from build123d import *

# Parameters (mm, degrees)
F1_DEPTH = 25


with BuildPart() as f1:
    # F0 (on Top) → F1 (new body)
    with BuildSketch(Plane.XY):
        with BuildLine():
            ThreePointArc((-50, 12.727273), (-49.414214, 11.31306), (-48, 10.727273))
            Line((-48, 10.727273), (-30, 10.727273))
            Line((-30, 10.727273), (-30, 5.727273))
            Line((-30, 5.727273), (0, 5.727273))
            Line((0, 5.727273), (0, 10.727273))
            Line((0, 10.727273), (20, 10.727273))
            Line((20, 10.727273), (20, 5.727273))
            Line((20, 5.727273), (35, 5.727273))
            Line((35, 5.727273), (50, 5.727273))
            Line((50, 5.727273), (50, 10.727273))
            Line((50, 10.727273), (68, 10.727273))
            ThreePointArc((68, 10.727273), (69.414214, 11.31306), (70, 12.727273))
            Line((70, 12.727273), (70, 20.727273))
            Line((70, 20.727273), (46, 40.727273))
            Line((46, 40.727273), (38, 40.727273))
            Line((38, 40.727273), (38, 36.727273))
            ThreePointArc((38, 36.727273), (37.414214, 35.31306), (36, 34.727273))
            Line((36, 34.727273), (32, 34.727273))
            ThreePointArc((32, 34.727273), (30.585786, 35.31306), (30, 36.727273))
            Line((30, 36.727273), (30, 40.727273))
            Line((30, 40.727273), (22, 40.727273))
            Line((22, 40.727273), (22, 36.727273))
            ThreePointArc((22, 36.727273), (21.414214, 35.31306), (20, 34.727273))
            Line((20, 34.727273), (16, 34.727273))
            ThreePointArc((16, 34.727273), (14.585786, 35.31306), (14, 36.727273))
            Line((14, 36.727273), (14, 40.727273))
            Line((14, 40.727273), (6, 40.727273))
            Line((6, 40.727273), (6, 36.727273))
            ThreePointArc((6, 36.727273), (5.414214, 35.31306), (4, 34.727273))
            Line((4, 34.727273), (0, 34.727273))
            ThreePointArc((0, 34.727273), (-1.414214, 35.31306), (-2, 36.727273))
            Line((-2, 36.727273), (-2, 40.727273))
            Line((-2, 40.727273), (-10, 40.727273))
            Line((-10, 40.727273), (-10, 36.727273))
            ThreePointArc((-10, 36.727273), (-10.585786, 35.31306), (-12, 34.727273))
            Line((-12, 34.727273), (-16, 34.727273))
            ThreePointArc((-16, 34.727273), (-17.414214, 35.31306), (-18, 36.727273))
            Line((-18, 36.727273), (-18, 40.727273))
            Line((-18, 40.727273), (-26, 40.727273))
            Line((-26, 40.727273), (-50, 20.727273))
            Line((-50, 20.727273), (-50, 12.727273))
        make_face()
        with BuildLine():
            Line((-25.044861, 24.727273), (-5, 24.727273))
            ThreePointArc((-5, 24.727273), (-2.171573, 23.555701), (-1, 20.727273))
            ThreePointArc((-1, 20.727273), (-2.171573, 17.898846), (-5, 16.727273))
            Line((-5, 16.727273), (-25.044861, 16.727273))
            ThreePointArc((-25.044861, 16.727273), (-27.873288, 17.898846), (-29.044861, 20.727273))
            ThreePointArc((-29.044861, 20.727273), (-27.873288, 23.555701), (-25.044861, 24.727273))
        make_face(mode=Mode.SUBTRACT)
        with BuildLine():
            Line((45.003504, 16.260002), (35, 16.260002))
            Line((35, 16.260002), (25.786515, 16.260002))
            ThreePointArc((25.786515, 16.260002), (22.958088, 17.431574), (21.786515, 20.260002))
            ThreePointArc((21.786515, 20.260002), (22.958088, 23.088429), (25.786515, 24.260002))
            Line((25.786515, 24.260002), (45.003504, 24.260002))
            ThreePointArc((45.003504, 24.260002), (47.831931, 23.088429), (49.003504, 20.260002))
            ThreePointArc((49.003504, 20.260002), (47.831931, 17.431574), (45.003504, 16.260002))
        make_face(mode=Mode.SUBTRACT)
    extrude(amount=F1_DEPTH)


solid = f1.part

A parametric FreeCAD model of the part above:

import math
import FreeCAD as App
import Part
import Sketcher
from FreeCAD import Vector
Q = App.Units.Quantity

doc = App.newDocument("Part")
body = doc.addObject("PartDesign::Body", "Body")

sketch1 = body.newObject("Sketcher::SketchObject", "Sketch")
sketch1.AttachmentSupport = (doc.getObject("XY_Plane"), [""])
sketch1.MapMode = "FlatFace"
sketch1.addGeometry([
    Part.ArcOfCircle(Part.Circle(Vector(-48, 12.7, 0), Vector(0, 0, 1), 2), math.radians(-180), math.radians(-90)),
    Part.LineSegment(Vector(-48, 10.7, 0), Vector(-30, 10.7, 0)),
    Part.LineSegment(Vector(-30, 10.7, 0), Vector(-30, 5.7, 0)),
    Part.LineSegment(Vector(-30, 5.7, 0), Vector(0, 5.7, 0)),
    Part.LineSegment(Vector(0, 5.7, 0), Vector(0, 10.7, 0)),
    Part.LineSegment(Vector(0, 10.7, 0), Vector(20, 10.7, 0)),
    Part.LineSegment(Vector(20, 10.7, 0), Vector(20, 5.7, 0)),
    Part.LineSegment(Vector(20, 5.7, 0), Vector(50, 5.7, 0)),
    Part.LineSegment(Vector(50, 5.7, 0), Vector(50, 10.7, 0)),
    Part.LineSegment(Vector(50, 10.7, 0), Vector(68, 10.7, 0)),
    Part.ArcOfCircle(Part.Circle(Vector(68, 12.7, 0), Vector(0, 0, 1), 2), math.radians(-90), math.radians(0)),
    Part.LineSegment(Vector(70, 12.7, 0), Vector(70, 20.7, 0)),
    Part.LineSegment(Vector(70, 20.7, 0), Vector(46, 40.7, 0)),
    Part.LineSegment(Vector(46, 40.7, 0), Vector(38, 40.7, 0)),
    Part.LineSegment(Vector(38, 40.7, 0), Vector(38, 36.7, 0)),
    Part.ArcOfCircle(Part.Circle(Vector(36, 36.7, 0), Vector(0, 0, 1), 2), math.radians(-90), math.radians(0)),
    Part.LineSegment(Vector(36, 34.7, 0), Vector(32, 34.7, 0)),
    Part.ArcOfCircle(Part.Circle(Vector(32, 36.7, 0), Vector(0, 0, 1), 2), math.radians(-180), math.radians(-90)),
    Part.LineSegment(Vector(30, 36.7, 0), Vector(30, 40.7, 0)),
    Part.LineSegment(Vector(30, 40.7, 0), Vector(22, 40.7, 0)),
    Part.LineSegment(Vector(22, 40.7, 0), Vector(22, 36.7, 0)),
    Part.ArcOfCircle(Part.Circle(Vector(20, 36.7, 0), Vector(0, 0, 1), 2), math.radians(-90), math.radians(0)),
    Part.LineSegment(Vector(20, 34.7, 0), Vector(16, 34.7, 0)),
    Part.ArcOfCircle(Part.Circle(Vector(16, 36.7, 0), Vector(0, 0, 1), 2), math.radians(-180), math.radians(-90)),
    Part.LineSegment(Vector(14, 36.7, 0), Vector(14, 40.7, 0)),
    Part.LineSegment(Vector(14, 40.7, 0), Vector(6, 40.7, 0)),
    Part.LineSegment(Vector(6, 40.7, 0), Vector(6, 36.7, 0)),
    Part.ArcOfCircle(Part.Circle(Vector(4, 36.7, 0), Vector(0, 0, 1), 2), math.radians(-90), math.radians(0)),
    Part.LineSegment(Vector(4, 34.7, 0), Vector(0, 34.7, 0)),
    Part.ArcOfCircle(Part.Circle(Vector(0, 36.7, 0), Vector(0, 0, 1), 2), math.radians(-180), math.radians(-90)),
    Part.LineSegment(Vector(-2, 36.7, 0), Vector(-2, 40.7, 0)),
    Part.LineSegment(Vector(-2, 40.7, 0), Vector(-10, 40.7, 0)),
    Part.LineSegment(Vector(-10, 40.7, 0), Vector(-10, 36.7, 0)),
    Part.ArcOfCircle(Part.Circle(Vector(-12, 36.7, 0), Vector(0, 0, 1), 2), math.radians(-90), math.radians(0)),
    Part.LineSegment(Vector(-12, 34.7, 0), Vector(-16, 34.7, 0)),
    Part.ArcOfCircle(Part.Circle(Vector(-16, 36.7, 0), Vector(0, 0, 1), 2), math.radians(-180), math.radians(-90)),
    Part.LineSegment(Vector(-18, 36.7, 0), Vector(-18, 40.7, 0)),
    Part.LineSegment(Vector(-18, 40.7, 0), Vector(-26, 40.7, 0)),
    Part.LineSegment(Vector(-26, 40.7, 0), Vector(-50, 20.7, 0)),
    Part.LineSegment(Vector(-50, 20.7, 0), Vector(-50, 12.7, 0)),
    Part.ArcOfCircle(Part.Circle(Vector(45, 20.3, 0), Vector(0, 0, 1), 4), math.radians(-90), math.radians(0)),
    Part.LineSegment(Vector(45, 16.3, 0), Vector(25.8, 16.3, 0)),
    Part.ArcOfCircle(Part.Circle(Vector(25.8, 20.3, 0), Vector(0, 0, 1), 4), math.radians(180), math.radians(270)),
    Part.ArcOfCircle(Part.Circle(Vector(25.8, 20.3, 0), Vector(0, 0, 1), 4), math.radians(90), math.radians(180)),
    Part.LineSegment(Vector(25.8, 24.3, 0), Vector(45, 24.3, 0)),
    Part.ArcOfCircle(Part.Circle(Vector(45, 20.3, 0), Vector(0, 0, 1), 4), math.radians(0), math.radians(90)),
    Part.ArcOfCircle(Part.Circle(Vector(-25, 20.7, 0), Vector(0, 0, 1), 4), math.radians(90), math.radians(180)),
    Part.LineSegment(Vector(-25, 24.7, 0), Vector(-5, 24.7, 0)),
    Part.ArcOfCircle(Part.Circle(Vector(-5, 20.7, 0), Vector(0, 0, 1), 4), math.radians(0), math.radians(90)),
    Part.ArcOfCircle(Part.Circle(Vector(-5, 20.7, 0), Vector(0, 0, 1), 4), math.radians(-90), math.radians(0)),
    Part.LineSegment(Vector(-5, 16.7, 0), Vector(-25, 16.7, 0)),
    Part.ArcOfCircle(Part.Circle(Vector(-25, 20.7, 0), Vector(0, 0, 1), 4), math.radians(-180), math.radians(-90)),
], False)
sketch1.addConstraint([
    Sketcher.Constraint("Tangent", 0, 2, 1, 1),
    Sketcher.Constraint("Coincident", 1, 2, 2, 1),
    Sketcher.Constraint("Coincident", 2, 2, 3, 1),
    Sketcher.Constraint("Coincident", 3, 2, 4, 1),
    Sketcher.Constraint("Coincident", 4, 2, 5, 1),
    Sketcher.Constraint("Coincident", 5, 2, 6, 1),
    Sketcher.Constraint("Coincident", 6, 2, 7, 1),
    Sketcher.Constraint("Coincident", 7, 2, 8, 1),
    Sketcher.Constraint("Coincident", 8, 2, 9, 1),
    Sketcher.Constraint("Tangent", 9, 2, 10, 1),
    Sketcher.Constraint("Tangent", 10, 2, 11, 1),
    Sketcher.Constraint("Coincident", 11, 2, 12, 1),
    Sketcher.Constraint("Coincident", 12, 2, 13, 1),
    Sketcher.Constraint("Coincident", 13, 2, 14, 1),
    Sketcher.Constraint("Tangent", 14, 2, 15, 2),
    Sketcher.Constraint("Tangent", 15, 1, 16, 1),
    Sketcher.Constraint("Tangent", 16, 2, 17, 2),
    Sketcher.Constraint("Tangent", 17, 1, 18, 1),
    Sketcher.Constraint("Coincident", 18, 2, 19, 1),
    Sketcher.Constraint("Coincident", 19, 2, 20, 1),
    Sketcher.Constraint("Tangent", 20, 2, 21, 2),
    Sketcher.Constraint("Tangent", 21, 1, 22, 1),
    Sketcher.Constraint("Tangent", 22, 2, 23, 2),
    Sketcher.Constraint("Tangent", 23, 1, 24, 1),
    Sketcher.Constraint("Coincident", 24, 2, 25, 1),
    Sketcher.Constraint("Coincident", 25, 2, 26, 1),
    Sketcher.Constraint("Tangent", 26, 2, 27, 2),
    Sketcher.Constraint("Tangent", 27, 1, 28, 1),
    Sketcher.Constraint("Tangent", 28, 2, 29, 2),
    Sketcher.Constraint("Tangent", 29, 1, 30, 1),
    Sketcher.Constraint("Coincident", 30, 2, 31, 1),
    Sketcher.Constraint("Coincident", 31, 2, 32, 1),
    Sketcher.Constraint("Tangent", 32, 2, 33, 2),
    Sketcher.Constraint("Tangent", 33, 1, 34, 1),
    Sketcher.Constraint("Tangent", 34, 2, 35, 2),
    Sketcher.Constraint("Tangent", 35, 1, 36, 1),
    Sketcher.Constraint("Coincident", 36, 2, 37, 1),
    Sketcher.Constraint("Coincident", 37, 2, 38, 1),
    Sketcher.Constraint("Coincident", 38, 2, 39, 1),
    Sketcher.Constraint("Tangent", 39, 2, 0, 1),
    Sketcher.Constraint("Tangent", 40, 1, 41, 1),
    Sketcher.Constraint("Tangent", 41, 2, 42, 2),
    Sketcher.Constraint("Tangent", 42, 1, 43, 2),
    Sketcher.Constraint("Tangent", 43, 1, 44, 1),
    Sketcher.Constraint("Tangent", 44, 2, 45, 2),
    Sketcher.Constraint("Tangent", 45, 1, 40, 2),
    Sketcher.Constraint("Tangent", 46, 1, 47, 1),
    Sketcher.Constraint("Tangent", 47, 2, 48, 2),
    Sketcher.Constraint("Tangent", 48, 1, 49, 2),
    Sketcher.Constraint("Tangent", 49, 1, 50, 1),
    Sketcher.Constraint("Tangent", 50, 2, 51, 2),
    Sketcher.Constraint("Tangent", 51, 1, 46, 2),
    Sketcher.Constraint("Horizontal", 1),
    Sketcher.Constraint("Vertical", 2),
    Sketcher.Constraint("Horizontal", 3),
    Sketcher.Constraint("Vertical", 4),
    Sketcher.Constraint("Horizontal", 5),
    Sketcher.Constraint("Vertical", 6),
    Sketcher.Constraint("Horizontal", 7),
    Sketcher.Constraint("Vertical", 8),
    Sketcher.Constraint("Horizontal", 9),
    Sketcher.Constraint("Vertical", 11),
    Sketcher.Constraint("Horizontal", 13),
    Sketcher.Constraint("Vertical", 14),
    Sketcher.Constraint("Horizontal", 16),
    Sketcher.Constraint("Vertical", 18),
    Sketcher.Constraint("Horizontal", 19),
    Sketcher.Constraint("Vertical", 20),
    Sketcher.Constraint("Horizontal", 22),
    Sketcher.Constraint("Vertical", 24),
    Sketcher.Constraint("Horizontal", 25),
    Sketcher.Constraint("Vertical", 26),
    Sketcher.Constraint("Horizontal", 28),
    Sketcher.Constraint("Vertical", 30),
    Sketcher.Constraint("Horizontal", 31),
    Sketcher.Constraint("Vertical", 32),
    Sketcher.Constraint("Horizontal", 34),
    Sketcher.Constraint("Vertical", 36),
    Sketcher.Constraint("Horizontal", 37),
    Sketcher.Constraint("Vertical", 39),
    Sketcher.Constraint("Horizontal", 41),
    Sketcher.Constraint("Horizontal", 44),
    Sketcher.Constraint("Horizontal", 47),
    Sketcher.Constraint("Horizontal", 50),
    Sketcher.Constraint("Equal", 0, 10),
    Sketcher.Constraint("Equal", 10, 15),
    Sketcher.Constraint("Equal", 15, 17),
    Sketcher.Constraint("Equal", 17, 21),
    Sketcher.Constraint("Equal", 21, 23),
    Sketcher.Constraint("Equal", 23, 27),
    Sketcher.Constraint("Equal", 27, 29),
    Sketcher.Constraint("Equal", 29, 33),
    Sketcher.Constraint("Equal", 33, 35),
    Sketcher.Constraint("Equal", 40, 42),
    Sketcher.Constraint("Equal", 42, 43),
    Sketcher.Constraint("Equal", 45, 46),
    Sketcher.Constraint("Equal", 46, 48),
    Sketcher.Constraint("Equal", 48, 49),
    Sketcher.Constraint("Symmetric", 23, 3, 35, 3, -2),
    Sketcher.Constraint("PointOnObject", 29, 3, -2),
    Sketcher.Constraint("PointOnObject", 3, 2, -2),
    Sketcher.Constraint("Horizontal", 0, 3, 10, 3),
    Sketcher.Constraint("Horizontal", 17, 3, 21, 3),
    Sketcher.Constraint("Horizontal", 23, 3, 27, 3),
    Sketcher.Constraint("Horizontal", 1, 2, 4, 2),
    Sketcher.Constraint("Horizontal", 3, 2, 6, 2),
    Sketcher.Constraint("Horizontal", 51, 3, 11, 2),
    Sketcher.Constraint("Horizontal", 13, 2, 18, 2),
    Sketcher.Constraint("Horizontal", 19, 2, 24, 2),
    Sketcher.Constraint("Horizontal", 25, 2, 30, 2),
    Sketcher.Constraint("Horizontal", 31, 2, 36, 2),
    Sketcher.Constraint("Horizontal", 11, 2, 38, 2),
    Sketcher.Constraint("Horizontal", 45, 3, 42, 1),
    Sketcher.Constraint("Horizontal", 42, 1, 45, 1),
    Sketcher.Constraint("Horizontal", 38, 2, 48, 1),
    Sketcher.Constraint("Horizontal", 48, 1, 51, 1),
    Sketcher.Constraint("Vertical", 21, 3, 5, 2),
    Sketcher.Constraint("Equal", 3, 7),
    Sketcher.Constraint("Equal", 1, 9),
    Sketcher.Constraint("Equal", 13, 19),
    Sketcher.Constraint("Equal", 16, 22),
    Sketcher.Constraint("Equal", 19, 25),
    Sketcher.Constraint("Equal", 22, 28),
    Sketcher.Constraint("Equal", 25, 31),
    Sketcher.Constraint("Equal", 31, 37),
    Sketcher.Constraint("Equal", 37, 11),
    Sketcher.Constraint("Equal", 34, 14),
    Sketcher.Constraint("Radius", 0, Q("2 mm")),
    Sketcher.Constraint("Radius", 40, Q("3.999999 mm")),
    Sketcher.Constraint("DistanceX", 1, 1, 1, 2, Q("18 mm")),
    Sketcher.Constraint("DistanceX", 3, 1, 3, 2, Q("30 mm")),
    Sketcher.Constraint("DistanceX", 5, 1, 5, 2, Q("20 mm")),
    Sketcher.Constraint("DistanceX", 13, 2, 13, 1, Q("8 mm")),
    Sketcher.Constraint("DistanceY", 2, 2, 2, 1, Q("5 mm")),
    Sketcher.Constraint("DistanceX", 48, 3, -1, 1, Q("4.999999 mm")),
    Sketcher.Constraint("DistanceY", -1, 1, 40, 3, Q("20.260001 mm")),
    Sketcher.Constraint("Distance", 12, Q("31.240999 mm")),
    Sketcher.Constraint("DistanceX", 41, 2, 41, 1, Q("19.216989 mm")),
    Sketcher.Constraint("DistanceX", 47, 1, 47, 2, Q("20.044861 mm")),
    Sketcher.Constraint("DistanceY", -1, 1, 0, 3, Q("12.727273 mm")),
    Sketcher.Constraint("DistanceX", -1, 1, 40, 3, Q("45.003505 mm")),
])
pad1 = body.newObject("PartDesign::Pad", "Pad")
pad1.Profile = sketch1
pad1.Length = 25

doc.recompute()
